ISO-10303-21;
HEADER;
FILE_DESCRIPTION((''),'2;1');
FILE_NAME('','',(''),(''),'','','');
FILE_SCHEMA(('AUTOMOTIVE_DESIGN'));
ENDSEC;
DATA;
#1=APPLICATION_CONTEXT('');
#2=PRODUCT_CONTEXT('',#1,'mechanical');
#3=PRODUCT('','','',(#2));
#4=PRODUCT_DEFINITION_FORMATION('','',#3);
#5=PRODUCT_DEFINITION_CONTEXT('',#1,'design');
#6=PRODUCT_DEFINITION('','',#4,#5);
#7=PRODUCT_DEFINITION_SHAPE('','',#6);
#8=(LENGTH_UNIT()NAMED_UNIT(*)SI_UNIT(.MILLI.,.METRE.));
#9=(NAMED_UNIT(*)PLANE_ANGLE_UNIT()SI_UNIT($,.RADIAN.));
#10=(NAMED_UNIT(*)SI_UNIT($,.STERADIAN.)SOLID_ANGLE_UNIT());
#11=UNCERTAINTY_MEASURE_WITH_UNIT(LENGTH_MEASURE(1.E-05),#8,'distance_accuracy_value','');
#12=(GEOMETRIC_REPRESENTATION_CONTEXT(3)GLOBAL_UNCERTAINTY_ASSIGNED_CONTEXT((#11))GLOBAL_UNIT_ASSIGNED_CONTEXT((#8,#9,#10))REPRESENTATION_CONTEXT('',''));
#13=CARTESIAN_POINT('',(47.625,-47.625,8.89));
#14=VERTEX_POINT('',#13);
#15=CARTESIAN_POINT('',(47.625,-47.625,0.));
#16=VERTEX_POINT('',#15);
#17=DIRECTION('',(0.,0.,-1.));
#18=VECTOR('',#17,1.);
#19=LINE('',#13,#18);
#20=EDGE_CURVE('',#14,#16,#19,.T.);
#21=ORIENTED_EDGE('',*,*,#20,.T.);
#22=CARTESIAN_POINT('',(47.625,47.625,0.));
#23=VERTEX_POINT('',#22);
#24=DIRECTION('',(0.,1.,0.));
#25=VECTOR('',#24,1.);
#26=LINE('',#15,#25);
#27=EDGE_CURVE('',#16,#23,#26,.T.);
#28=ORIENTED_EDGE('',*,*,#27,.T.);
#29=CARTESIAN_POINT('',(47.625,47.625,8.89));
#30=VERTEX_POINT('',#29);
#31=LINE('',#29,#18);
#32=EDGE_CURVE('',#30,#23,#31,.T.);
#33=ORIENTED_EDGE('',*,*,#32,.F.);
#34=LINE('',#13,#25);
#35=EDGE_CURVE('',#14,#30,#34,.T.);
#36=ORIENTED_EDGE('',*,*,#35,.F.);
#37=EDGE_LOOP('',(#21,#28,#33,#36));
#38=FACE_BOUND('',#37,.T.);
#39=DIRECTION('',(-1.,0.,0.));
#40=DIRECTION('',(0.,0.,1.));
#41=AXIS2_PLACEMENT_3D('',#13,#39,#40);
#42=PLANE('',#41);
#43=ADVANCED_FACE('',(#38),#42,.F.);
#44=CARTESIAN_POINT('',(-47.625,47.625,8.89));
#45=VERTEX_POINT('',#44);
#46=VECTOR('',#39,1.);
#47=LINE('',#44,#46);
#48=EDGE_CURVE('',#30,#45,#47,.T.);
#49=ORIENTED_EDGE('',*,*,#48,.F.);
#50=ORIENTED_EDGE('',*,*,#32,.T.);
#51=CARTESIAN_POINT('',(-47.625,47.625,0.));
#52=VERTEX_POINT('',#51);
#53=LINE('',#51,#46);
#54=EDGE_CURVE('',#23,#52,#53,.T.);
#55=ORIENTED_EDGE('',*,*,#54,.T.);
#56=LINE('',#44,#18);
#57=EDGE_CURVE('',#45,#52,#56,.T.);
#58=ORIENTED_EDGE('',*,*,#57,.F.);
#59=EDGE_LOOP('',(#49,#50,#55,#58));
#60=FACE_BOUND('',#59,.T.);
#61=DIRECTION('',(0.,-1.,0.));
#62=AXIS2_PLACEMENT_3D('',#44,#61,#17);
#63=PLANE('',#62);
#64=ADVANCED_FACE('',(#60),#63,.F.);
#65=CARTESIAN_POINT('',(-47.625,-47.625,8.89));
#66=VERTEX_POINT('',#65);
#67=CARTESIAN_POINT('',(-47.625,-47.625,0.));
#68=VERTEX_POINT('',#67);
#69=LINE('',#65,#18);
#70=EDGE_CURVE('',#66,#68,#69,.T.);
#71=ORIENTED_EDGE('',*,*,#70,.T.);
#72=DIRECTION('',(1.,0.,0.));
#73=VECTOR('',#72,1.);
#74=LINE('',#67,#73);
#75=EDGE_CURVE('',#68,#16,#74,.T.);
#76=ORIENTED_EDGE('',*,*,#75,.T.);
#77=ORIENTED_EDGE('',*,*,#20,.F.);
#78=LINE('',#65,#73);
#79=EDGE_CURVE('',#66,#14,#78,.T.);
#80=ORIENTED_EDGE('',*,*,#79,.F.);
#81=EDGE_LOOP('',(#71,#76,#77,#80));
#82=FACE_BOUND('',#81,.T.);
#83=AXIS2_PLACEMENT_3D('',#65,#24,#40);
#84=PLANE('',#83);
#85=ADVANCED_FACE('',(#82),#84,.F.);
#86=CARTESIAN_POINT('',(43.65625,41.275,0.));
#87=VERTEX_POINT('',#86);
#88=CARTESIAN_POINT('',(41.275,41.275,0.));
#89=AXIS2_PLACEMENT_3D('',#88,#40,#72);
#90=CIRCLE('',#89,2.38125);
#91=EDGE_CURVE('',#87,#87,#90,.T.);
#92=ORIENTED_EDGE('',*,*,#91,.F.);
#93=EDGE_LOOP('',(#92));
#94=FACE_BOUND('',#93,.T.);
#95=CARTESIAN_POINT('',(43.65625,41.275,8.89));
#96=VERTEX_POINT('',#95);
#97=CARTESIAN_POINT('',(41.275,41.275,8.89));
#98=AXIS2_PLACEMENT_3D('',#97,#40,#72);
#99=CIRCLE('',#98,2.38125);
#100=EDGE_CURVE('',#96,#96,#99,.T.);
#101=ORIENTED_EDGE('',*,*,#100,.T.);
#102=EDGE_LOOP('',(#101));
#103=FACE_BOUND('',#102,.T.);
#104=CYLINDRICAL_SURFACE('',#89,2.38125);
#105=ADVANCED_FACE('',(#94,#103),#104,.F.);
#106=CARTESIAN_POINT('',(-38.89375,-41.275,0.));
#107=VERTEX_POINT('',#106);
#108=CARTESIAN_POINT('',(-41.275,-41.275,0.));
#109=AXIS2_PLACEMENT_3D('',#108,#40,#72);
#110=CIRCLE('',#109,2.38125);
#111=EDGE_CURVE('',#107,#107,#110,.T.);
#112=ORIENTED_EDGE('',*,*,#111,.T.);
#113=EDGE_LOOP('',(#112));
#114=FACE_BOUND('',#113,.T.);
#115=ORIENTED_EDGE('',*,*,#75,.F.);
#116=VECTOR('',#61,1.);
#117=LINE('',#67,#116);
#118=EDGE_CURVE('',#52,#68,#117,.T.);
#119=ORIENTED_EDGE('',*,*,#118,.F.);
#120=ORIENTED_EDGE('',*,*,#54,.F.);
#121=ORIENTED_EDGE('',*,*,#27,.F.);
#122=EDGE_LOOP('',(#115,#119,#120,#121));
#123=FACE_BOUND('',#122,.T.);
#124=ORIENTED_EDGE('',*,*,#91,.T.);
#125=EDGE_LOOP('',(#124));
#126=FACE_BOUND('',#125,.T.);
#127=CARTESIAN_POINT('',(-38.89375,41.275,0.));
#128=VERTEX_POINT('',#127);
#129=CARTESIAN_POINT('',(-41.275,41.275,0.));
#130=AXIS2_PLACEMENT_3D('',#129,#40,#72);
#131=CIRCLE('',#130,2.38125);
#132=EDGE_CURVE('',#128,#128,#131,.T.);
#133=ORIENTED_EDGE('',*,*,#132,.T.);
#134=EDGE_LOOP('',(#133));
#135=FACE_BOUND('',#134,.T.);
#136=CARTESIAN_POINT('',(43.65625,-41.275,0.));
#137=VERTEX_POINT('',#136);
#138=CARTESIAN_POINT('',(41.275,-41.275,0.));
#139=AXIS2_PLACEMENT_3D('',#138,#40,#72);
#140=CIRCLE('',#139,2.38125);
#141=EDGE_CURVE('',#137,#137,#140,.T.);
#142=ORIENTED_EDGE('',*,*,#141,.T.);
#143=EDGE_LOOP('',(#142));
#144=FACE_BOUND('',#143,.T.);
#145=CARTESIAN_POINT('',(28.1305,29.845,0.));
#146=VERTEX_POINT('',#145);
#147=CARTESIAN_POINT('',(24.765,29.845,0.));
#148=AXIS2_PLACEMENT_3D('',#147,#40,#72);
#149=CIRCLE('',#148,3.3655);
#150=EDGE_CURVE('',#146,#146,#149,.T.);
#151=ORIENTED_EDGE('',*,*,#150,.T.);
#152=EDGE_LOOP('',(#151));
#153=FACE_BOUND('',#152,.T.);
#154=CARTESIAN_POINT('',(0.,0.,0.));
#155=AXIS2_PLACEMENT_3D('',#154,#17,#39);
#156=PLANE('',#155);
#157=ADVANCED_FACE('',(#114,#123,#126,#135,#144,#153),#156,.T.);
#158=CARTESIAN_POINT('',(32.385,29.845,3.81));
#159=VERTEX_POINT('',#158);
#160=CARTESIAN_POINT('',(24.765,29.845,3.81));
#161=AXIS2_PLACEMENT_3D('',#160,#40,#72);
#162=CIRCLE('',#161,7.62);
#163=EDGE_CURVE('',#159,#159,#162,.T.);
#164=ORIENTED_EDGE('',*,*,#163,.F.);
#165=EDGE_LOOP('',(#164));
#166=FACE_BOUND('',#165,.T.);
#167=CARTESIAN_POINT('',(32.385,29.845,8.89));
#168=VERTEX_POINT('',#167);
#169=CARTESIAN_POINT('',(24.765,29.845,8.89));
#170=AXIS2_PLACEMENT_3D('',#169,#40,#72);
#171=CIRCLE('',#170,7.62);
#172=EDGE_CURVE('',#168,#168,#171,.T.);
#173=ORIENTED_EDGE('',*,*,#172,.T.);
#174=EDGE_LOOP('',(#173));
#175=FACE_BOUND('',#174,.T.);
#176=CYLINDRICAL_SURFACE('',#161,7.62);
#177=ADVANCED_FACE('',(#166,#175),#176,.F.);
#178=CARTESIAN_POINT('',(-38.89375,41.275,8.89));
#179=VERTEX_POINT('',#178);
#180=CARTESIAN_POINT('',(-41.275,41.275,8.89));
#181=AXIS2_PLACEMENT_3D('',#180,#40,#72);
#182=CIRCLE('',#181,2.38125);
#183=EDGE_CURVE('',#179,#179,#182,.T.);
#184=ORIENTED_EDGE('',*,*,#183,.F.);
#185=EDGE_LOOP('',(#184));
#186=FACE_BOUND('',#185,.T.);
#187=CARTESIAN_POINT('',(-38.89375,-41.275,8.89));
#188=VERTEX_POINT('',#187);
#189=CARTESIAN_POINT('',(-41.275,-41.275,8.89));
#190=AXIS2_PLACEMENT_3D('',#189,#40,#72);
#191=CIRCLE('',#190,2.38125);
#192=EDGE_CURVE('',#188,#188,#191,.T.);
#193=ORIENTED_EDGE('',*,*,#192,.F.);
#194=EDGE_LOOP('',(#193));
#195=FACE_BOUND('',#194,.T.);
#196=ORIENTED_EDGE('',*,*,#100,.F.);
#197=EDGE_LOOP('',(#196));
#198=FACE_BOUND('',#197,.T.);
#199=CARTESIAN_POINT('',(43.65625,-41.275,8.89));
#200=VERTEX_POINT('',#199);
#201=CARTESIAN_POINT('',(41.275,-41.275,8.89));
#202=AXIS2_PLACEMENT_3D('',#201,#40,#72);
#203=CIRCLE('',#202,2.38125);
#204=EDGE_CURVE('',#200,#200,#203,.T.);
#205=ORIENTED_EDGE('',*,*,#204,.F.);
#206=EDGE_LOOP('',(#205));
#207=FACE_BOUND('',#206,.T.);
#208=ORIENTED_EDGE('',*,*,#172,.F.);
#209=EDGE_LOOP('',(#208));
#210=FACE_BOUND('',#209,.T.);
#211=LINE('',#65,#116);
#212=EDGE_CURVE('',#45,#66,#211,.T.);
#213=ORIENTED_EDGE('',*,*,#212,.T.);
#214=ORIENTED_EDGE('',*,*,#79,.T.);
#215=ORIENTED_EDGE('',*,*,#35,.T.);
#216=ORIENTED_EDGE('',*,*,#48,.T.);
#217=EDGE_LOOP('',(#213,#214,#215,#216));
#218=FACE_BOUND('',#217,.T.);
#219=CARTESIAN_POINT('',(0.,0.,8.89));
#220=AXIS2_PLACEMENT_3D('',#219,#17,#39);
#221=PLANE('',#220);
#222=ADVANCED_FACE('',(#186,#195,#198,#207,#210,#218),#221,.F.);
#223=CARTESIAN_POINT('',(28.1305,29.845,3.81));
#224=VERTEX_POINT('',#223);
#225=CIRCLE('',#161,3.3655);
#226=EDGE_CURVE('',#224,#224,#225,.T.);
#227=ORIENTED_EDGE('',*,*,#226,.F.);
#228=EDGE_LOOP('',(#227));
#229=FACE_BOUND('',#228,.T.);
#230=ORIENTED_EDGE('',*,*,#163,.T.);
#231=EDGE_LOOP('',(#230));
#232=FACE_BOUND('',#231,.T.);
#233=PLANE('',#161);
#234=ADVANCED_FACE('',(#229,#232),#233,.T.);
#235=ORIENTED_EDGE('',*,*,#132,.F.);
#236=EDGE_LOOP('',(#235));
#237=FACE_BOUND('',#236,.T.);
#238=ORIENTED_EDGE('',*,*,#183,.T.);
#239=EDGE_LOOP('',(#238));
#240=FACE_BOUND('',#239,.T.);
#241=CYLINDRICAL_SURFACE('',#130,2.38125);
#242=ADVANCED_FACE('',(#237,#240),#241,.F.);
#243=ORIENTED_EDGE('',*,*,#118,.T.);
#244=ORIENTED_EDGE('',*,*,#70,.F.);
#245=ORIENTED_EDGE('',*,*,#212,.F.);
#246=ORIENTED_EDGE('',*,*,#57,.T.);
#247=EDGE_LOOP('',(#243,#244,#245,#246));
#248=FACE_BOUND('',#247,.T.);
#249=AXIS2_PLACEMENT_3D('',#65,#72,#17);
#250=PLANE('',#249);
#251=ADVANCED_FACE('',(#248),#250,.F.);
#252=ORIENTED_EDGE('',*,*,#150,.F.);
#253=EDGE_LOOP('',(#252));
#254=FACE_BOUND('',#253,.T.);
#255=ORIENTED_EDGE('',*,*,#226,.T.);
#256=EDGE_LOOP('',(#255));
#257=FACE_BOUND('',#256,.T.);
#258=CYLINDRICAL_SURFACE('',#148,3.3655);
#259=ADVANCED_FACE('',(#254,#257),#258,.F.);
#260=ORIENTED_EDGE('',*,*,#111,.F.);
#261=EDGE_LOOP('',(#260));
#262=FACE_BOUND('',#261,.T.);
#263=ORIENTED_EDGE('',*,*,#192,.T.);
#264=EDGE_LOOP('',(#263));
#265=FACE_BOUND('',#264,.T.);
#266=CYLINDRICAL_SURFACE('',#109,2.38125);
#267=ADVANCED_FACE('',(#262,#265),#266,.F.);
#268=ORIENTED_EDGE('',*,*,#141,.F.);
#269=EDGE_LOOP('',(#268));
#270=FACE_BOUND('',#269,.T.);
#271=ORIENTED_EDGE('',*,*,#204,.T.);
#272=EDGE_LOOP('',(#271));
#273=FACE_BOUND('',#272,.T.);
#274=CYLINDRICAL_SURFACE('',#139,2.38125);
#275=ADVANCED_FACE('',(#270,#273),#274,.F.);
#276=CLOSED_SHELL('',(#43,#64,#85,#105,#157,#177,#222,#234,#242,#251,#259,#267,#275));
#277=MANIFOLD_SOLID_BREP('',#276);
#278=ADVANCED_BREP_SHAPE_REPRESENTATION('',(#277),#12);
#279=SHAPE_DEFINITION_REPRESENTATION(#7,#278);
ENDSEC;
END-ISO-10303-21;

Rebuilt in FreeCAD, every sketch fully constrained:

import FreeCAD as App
import Part
import Sketcher

V = App.Vector
Q = App.Units.Quantity

doc = App.newDocument("Part")
body = doc.addObject("PartDesign::Body", "Body")

# Sketch on XY plane
sketch1 = doc.addObject("Sketcher::SketchObject", "Sketch")
body.addObject(sketch1)
sketch1.AttachmentSupport = (doc.XY_Plane, [""])
sketch1.MapMode = "FlatFace"
sketch1.addGeometry([
    Part.LineSegment(V(-48, 48, 0), V(-48, -48, 0)),
    Part.LineSegment(V(-48, -48, 0), V(48, -48, 0)),
    Part.LineSegment(V(48, -48, 0), V(48, 48, 0)),
    Part.LineSegment(V(48, 48, 0), V(-48, 48, 0)),
], False)
sketch1.addConstraint([
    Sketcher.Constraint("Coincident", 0, 2, 1, 1),
    Sketcher.Constraint("Coincident", 1, 2, 2, 1),
    Sketcher.Constraint("Coincident", 2, 2, 3, 1),
    Sketcher.Constraint("Coincident", 3, 2, 0, 1),
    Sketcher.Constraint("Vertical", 0),
    Sketcher.Constraint("Horizontal", 1),
    Sketcher.Constraint("Vertical", 2),
    Sketcher.Constraint("Horizontal", 3),
    Sketcher.Constraint("Symmetric", 0, 2, 2, 2, -1, 1),
    Sketcher.Constraint("Equal", 3, 0),
    Sketcher.Constraint("DistanceX", 1, 1, 1, 2, Q("3.75 in")),
])
pad1 = doc.addObject("PartDesign::Pad", "Pad")
body.addObject(pad1)
pad1.Profile = sketch1
pad1.Length = Q("0.35 in")

# Sketch on XY plane
sketch2 = doc.addObject("Sketcher::SketchObject", "Sketch001")
body.addObject(sketch2)
sketch2.AttachmentSupport = (doc.XY_Plane, [""])
sketch2.MapMode = "FlatFace"
sketch2.AttachmentOffset = App.Placement(V(0, 0, 0.35 * 25.4), App.Rotation())
sketch2.addGeometry([
    Part.LineSegment(V(-62.1, 62.1, 0), V(-62.1, -62.1, 0)),  # 0
    Part.LineSegment(V(-62.1, -62.1, 0), V(62.1, -62.1, 0)),  # 1
    Part.LineSegment(V(62.1, -62.1, 0), V(62.1, 62.1, 0)),  # 2
    Part.LineSegment(V(62.1, 62.1, 0), V(-62.1, 62.1, 0)),  # 3
    Part.LineSegment(V(47.6, -47.6, 0), V(-47.6, -47.6, 0)),  # 4
    Part.LineSegment(V(-47.6, -47.6, 0), V(-47.6, 47.6, 0)),  # 5
    Part.LineSegment(V(-47.6, 47.6, 0), V(47.6, 47.6, 0)),  # 6
    Part.LineSegment(V(47.6, 47.6, 0), V(47.6, -47.6, 0)),  # 7
    Part.Circle(V(-41.3, 41.3, 0), V(0, 0, 1), 2.4),  # 8
    Part.Circle(V(41.3, 41.3, 0), V(0, 0, 1), 2.4),  # 9
    Part.Circle(V(41.3, -41.3, 0), V(0, 0, 1), 2.4),  # 10
    Part.Circle(V(-41.3, -41.3, 0), V(0, 0, 1), 2.4),  # 11
], False)
sketch2.addConstraint([
    Sketcher.Constraint("Coincident", 0, 2, 1, 1),
    Sketcher.Constraint("Coincident", 1, 2, 2, 1),
    Sketcher.Constraint("Coincident", 2, 2, 3, 1),
    Sketcher.Constraint("Coincident", 3, 2, 0, 1),
    Sketcher.Constraint("Coincident", 4, 2, 5, 1),
    Sketcher.Constraint("Coincident", 5, 2, 6, 1),
    Sketcher.Constraint("Coincident", 6, 2, 7, 1),
    Sketcher.Constraint("Coincident", 7, 2, 4, 1),
    Sketcher.Constraint("Vertical", 0),
    Sketcher.Constraint("Horizontal", 1),
    Sketcher.Constraint("Vertical", 2),
    Sketcher.Constraint("Horizontal", 3),
    Sketcher.Constraint("Horizontal", 4),
    Sketcher.Constraint("Vertical", 5),
    Sketcher.Constraint("Horizontal", 6),
    Sketcher.Constraint("Vertical", 7),
    Sketcher.Constraint("Equal", 8, 9),
    Sketcher.Constraint("Equal", 9, 10),
    Sketcher.Constraint("Equal", 10, 11),
    Sketcher.Constraint("Symmetric", 8, 3, 10, 3, -1, 1),
    Sketcher.Constraint("Symmetric", 9, 3, 11, 3, -1, 1),
    Sketcher.Constraint("Symmetric", 0, 2, 2, 2, -1, 1),
    Sketcher.Constraint("Symmetric", 4, 2, 6, 2, -1, 1),
    Sketcher.Constraint("Symmetric", 8, 3, 9, 3, -2),
    Sketcher.Constraint("Equal", 3, 0),
    Sketcher.Constraint("Equal", 6, 5),
    Sketcher.Constraint("Diameter", 8, Q("0.1875 in")),
    Sketcher.Constraint("DistanceX", 4, 2, 4, 1, Q("3.75 in")),
    Sketcher.Constraint("DistanceY", 4, 2, 8, 3, Q("3.5 in")),
    Sketcher.Constraint("DistanceX", 4, 2, 10, 3, Q("3.5 in")),
    Sketcher.Constraint("DistanceX", 1, 1, 1, 2, 124.25),
])
pocket1 = doc.addObject("PartDesign::Pocket", "Pocket")
body.addObject(pocket1)
pocket1.Profile = sketch2
pocket1.Type = "ThroughAll"

# Sketch on XY plane
sketch3 = doc.addObject("Sketcher::SketchObject", "Sketch002")
body.addObject(sketch3)
sketch3.AttachmentSupport = (doc.XY_Plane, [""])
sketch3.MapMode = "FlatFace"
sketch3.AttachmentOffset = App.Placement(V(0, 0, 0.35 * 25.4), App.Rotation())
sketch3.addGeometry(Part.Circle(V(25, 30, 0), V(0, 0, 1), 8), False)
sketch3.addConstraint([
    Sketcher.Constraint("Diameter", 0, Q("0.6 in")),
    Sketcher.Constraint("DistanceX", -1, 1, 0, 3, Q("0.975 in")),
    Sketcher.Constraint("DistanceY", -1, 1, 0, 3, Q("1.175 in")),
])
pocket2 = doc.addObject("PartDesign::Pocket", "Pocket001")
body.addObject(pocket2)
pocket2.Profile = sketch3
pocket2.Length = Q("0.2 in")

# Sketch on XY plane
sketch4 = doc.addObject("Sketcher::SketchObject", "Sketch003")
body.addObject(sketch4)
sketch4.AttachmentSupport = (doc.XY_Plane, [""])
sketch4.MapMode = "FlatFace"
sketch4.AttachmentOffset = App.Placement(V(0, 0, 0.15 * 25.4), App.Rotation())
sketch4.addGeometry(Part.Circle(V(24.8, 29.8, 0), V(0, 0, 1), 3.4), False)
sketch4.addConstraint([
    Sketcher.Constraint("Diameter", 0, Q("0.265 in")),
    Sketcher.Constraint("DistanceX", -1, 1, 0, 3, Q("0.975 in")),
    Sketcher.Constraint("DistanceY", -1, 1, 0, 3, Q("1.175 in")),
])
pocket3 = doc.addObject("PartDesign::Pocket", "Pocket002")
body.addObject(pocket3)
pocket3.Profile = sketch4
pocket3.Type = "ThroughAll"

doc.recompute()
